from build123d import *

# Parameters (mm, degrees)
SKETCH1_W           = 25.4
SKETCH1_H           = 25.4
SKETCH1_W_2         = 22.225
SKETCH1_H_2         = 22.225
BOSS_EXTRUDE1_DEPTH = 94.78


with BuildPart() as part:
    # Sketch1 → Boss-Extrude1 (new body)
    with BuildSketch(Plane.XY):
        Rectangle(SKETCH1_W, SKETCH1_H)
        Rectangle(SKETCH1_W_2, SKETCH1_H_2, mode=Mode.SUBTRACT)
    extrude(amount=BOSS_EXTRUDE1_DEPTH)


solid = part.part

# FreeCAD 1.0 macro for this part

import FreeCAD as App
import Part
import Sketcher
Q = App.Units.Quantity


def add_polygon(sketch, points):
    """Adds a closed chain of lines whose ends are joined by coincident constraints."""
    first, n = sketch.GeometryCount, len(points)
    for a, b in zip(points, points[1:] + points[:1]):
        sketch.addGeometry(Part.LineSegment(App.Vector(*a, 0), App.Vector(*b, 0)), False)
    for i in range(n):
        sketch.addConstraint(Sketcher.Constraint("Coincident", first + i, 2, first + (i + 1) % n, 1))

doc = App.newDocument("Part")
params = doc.addObject("Spreadsheet::Sheet", "Params")
for row, (alias, value) in enumerate([
    ("sketch1_width", "1 in"),
    ("sketch1_width2", "0.875 in"),
    ("pad1_length", "94.78 mm"),
], start=1):
    params.set(f"A{row}", alias)
    params.set(f"B{row}", "=" + value)
    params.setAlias(f"B{row}", alias)

body = doc.addObject("PartDesign::Body", "Body")

# Sketch on XY plane
sketch1 = body.newObject("Sketcher::SketchObject", "Sketch")
sketch1.AttachmentSupport = (doc.getObject("XY_Plane"), [""])
sketch1.MapMode = "FlatFace"
add_polygon(sketch1, [(-13, 13), (-13, -13), (13, -13), (13, 13)])  # lines 0-3
add_polygon(sketch1, [(11, -11), (-11, -11), (-11, 11), (11, 11)])  # lines 4-7
sketch1.addConstraint(Sketcher.Constraint("Vertical", 0))
sketch1.addConstraint(Sketcher.Constraint("Horizontal", 1))
sketch1.addConstraint(Sketcher.Constraint("Vertical", 2))
sketch1.addConstraint(Sketcher.Constraint("Horizontal", 3))
sketch1.addConstraint(Sketcher.Constraint("Horizontal", 4))
sketch1.addConstraint(Sketcher.Constraint("Vertical", 5))
sketch1.addConstraint(Sketcher.Constraint("Horizontal", 6))
sketch1.addConstraint(Sketcher.Constraint("Vertical", 7))
sketch1.addConstraint(Sketcher.Constraint("Symmetric", 0, 2, 2, 2, -1, 1))
sketch1.addConstraint(Sketcher.Constraint("Symmetric", 4, 2, 6, 2, -1, 1))
sketch1.addConstraint(Sketcher.Constraint("Equal", 3, 0))
sketch1.addConstraint(Sketcher.Constraint("Equal", 6, 5))
sketch1.addConstraint(Sketcher.Constraint("DistanceX", 1, 1, 1, 2, Q("1 in")))
sketch1.addConstraint(Sketcher.Constraint("DistanceX", 4, 2, 4, 1, Q("0.875 in")))
sketch1.setExpression("Constraints[20]", "Params.sketch1_width")
sketch1.setExpression("Constraints[21]", "Params.sketch1_width2")
pad1 = body.newObject("PartDesign::Pad", "Pad")
pad1.Profile = sketch1
pad1.setExpression("Length", "Params.pad1_length")

doc.recompute()
